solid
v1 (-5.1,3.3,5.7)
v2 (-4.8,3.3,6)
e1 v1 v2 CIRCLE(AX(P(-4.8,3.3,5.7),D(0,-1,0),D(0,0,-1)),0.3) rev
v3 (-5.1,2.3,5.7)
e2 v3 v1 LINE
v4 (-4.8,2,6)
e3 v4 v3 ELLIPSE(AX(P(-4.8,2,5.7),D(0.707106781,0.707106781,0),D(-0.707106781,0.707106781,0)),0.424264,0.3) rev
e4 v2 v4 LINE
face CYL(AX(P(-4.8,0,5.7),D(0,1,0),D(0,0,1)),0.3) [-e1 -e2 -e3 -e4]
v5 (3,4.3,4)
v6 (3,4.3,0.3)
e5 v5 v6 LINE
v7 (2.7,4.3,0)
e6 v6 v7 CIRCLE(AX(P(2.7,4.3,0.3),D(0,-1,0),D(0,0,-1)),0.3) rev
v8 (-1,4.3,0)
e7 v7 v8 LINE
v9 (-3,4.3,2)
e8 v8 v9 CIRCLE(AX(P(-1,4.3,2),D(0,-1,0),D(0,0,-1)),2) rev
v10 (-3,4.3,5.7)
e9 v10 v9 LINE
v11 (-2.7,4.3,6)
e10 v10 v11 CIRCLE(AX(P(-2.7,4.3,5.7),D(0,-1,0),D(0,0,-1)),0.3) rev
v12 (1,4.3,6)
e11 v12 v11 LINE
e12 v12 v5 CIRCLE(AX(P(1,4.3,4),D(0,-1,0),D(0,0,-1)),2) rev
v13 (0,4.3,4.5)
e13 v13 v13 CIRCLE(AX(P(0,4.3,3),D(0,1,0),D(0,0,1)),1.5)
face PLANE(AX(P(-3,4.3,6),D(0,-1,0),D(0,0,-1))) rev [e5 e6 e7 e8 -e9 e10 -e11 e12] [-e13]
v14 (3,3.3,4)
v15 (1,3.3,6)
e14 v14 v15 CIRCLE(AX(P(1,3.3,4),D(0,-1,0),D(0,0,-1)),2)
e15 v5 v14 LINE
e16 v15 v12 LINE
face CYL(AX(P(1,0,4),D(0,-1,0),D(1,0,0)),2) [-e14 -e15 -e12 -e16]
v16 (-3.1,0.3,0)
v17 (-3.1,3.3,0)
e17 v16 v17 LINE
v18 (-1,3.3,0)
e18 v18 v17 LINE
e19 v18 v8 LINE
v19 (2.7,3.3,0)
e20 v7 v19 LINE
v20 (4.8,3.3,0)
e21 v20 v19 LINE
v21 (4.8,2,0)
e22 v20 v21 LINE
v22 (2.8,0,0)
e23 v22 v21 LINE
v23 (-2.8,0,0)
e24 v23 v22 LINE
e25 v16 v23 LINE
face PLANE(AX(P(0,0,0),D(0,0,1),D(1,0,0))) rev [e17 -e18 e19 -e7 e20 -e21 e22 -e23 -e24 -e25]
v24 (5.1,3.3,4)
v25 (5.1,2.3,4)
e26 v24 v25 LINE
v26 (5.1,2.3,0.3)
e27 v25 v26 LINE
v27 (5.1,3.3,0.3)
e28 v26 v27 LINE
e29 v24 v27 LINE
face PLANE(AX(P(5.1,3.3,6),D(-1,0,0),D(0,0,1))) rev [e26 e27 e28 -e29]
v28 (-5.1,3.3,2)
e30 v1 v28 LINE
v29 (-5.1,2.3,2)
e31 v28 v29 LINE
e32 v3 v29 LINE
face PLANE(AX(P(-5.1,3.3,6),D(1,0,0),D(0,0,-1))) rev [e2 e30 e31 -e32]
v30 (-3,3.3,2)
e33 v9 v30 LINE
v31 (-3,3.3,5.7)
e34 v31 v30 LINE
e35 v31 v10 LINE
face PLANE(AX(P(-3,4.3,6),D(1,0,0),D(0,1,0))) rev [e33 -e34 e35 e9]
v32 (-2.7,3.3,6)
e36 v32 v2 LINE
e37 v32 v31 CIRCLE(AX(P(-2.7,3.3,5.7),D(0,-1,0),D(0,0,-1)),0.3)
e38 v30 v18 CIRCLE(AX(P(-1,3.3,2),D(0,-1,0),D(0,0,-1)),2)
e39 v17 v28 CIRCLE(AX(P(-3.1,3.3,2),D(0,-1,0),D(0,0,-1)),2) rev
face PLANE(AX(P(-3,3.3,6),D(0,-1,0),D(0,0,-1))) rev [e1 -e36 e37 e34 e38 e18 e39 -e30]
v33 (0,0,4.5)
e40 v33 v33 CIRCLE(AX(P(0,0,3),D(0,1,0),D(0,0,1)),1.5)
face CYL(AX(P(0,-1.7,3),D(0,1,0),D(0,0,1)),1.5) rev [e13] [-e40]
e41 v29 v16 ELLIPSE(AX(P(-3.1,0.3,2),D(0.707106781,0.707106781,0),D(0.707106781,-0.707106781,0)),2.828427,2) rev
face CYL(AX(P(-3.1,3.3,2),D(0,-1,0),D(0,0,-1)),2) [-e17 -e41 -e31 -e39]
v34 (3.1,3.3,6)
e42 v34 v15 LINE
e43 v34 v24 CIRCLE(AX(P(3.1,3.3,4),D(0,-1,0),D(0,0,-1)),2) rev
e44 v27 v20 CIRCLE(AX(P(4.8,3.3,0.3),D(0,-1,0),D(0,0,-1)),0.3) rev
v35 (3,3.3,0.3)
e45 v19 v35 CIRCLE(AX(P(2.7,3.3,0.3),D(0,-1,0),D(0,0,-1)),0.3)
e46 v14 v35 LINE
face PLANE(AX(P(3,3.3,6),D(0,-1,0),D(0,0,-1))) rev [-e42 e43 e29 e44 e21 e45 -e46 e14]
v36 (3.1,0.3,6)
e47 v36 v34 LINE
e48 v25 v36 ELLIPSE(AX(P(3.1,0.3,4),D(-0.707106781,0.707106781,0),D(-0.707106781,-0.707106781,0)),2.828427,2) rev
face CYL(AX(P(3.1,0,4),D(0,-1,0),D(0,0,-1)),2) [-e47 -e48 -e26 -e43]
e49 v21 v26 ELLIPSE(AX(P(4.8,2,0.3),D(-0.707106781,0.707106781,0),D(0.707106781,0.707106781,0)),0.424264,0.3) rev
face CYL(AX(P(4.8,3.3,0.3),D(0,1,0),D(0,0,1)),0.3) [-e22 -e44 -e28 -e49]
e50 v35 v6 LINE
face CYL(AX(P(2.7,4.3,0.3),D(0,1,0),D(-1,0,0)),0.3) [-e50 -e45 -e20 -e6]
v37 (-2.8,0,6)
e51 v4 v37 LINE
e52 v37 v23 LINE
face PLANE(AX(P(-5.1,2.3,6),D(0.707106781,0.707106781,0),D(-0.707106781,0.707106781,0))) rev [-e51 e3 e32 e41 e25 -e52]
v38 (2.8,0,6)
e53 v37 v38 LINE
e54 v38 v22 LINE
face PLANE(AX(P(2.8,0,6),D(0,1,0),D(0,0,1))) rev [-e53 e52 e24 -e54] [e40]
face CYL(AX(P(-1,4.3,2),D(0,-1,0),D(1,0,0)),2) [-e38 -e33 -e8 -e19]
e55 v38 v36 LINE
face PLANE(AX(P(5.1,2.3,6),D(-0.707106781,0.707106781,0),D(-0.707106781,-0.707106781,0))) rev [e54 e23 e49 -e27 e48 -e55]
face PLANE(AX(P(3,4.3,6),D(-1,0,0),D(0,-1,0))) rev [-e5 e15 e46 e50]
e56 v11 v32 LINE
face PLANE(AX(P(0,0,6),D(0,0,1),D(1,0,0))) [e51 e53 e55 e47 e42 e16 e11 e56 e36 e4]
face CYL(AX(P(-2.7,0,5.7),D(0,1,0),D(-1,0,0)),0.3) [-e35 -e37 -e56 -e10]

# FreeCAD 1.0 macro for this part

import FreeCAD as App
import Part
import Sketcher
from FreeCAD import Vector


def edges_at(feature, points):
    """Names of the edges that pass closest to the given points."""
    edges = feature.Shape.Edges
    near = lambda p: min(range(len(edges)), key=lambda i: edges[i].distToShape(Part.Vertex(*p))[0])
    return sorted({f"Edge{near(p) + 1}" for p in points})


def add_polygon(sketch, points):
    """Adds a closed chain of lines whose ends are joined by coincident constraints."""
    first, n = sketch.GeometryCount, len(points)
    for a, b in zip(points, points[1:] + points[:1]):
        sketch.addGeometry(Part.LineSegment(App.Vector(*a, 0), App.Vector(*b, 0)), False)
    for i in range(n):
        sketch.addConstraint(Sketcher.Constraint("Coincident", first + i, 2, first + (i + 1) % n, 1))

doc = App.newDocument("Part")
body = doc.addObject("PartDesign::Body", "Body")

# Sketch on XY plane
sketch1 = body.newObject("Sketcher::SketchObject", "Sketch")
sketch1.AttachmentSupport = (doc.getObject("XY_Plane"), [""])
sketch1.MapMode = "FlatFace"
add_polygon(sketch1, [(3, 4.3), (-3, 4.3), (-3, 3.3), (-5.1, 3.3), (-5.1, 2.3), (-2.8, 0), (2.8, 0), (5.1, 2.3), (5.1, 3.3), (3, 3.3)])  # lines 0-9
sketch1.addConstraint([
    Sketcher.Constraint("Horizontal", 0),
    Sketcher.Constraint("Vertical", 1),
    Sketcher.Constraint("Horizontal", 2),
    Sketcher.Constraint("Vertical", 3),
    Sketcher.Constraint("Horizontal", 5),
    Sketcher.Constraint("Vertical", 7),
    Sketcher.Constraint("Horizontal", 8),
    Sketcher.Constraint("Vertical", 9),
    Sketcher.Constraint("Symmetric", 4, 2, 5, 2, -1, 1),
    Sketcher.Constraint("Symmetric", 3, 2, 6, 2, -2),
    Sketcher.Constraint("Symmetric", 1, 2, 8, 2, -2),
    Sketcher.Constraint("Perpendicular", 4, 6),
    Sketcher.Constraint("Equal", 1, 3),
    Sketcher.Constraint("DistanceX", 0, 2, 0, 1, 6.0),
    Sketcher.Constraint("DistanceY", 1, 2, 1, 1, 1.0),
    Sketcher.Constraint("DistanceX", 2, 2, 2, 1, 2.1),
    Sketcher.Constraint("DistanceX", 5, 1, 5, 2, 5.6),
])
pad1 = body.newObject("PartDesign::Pad", "Pad")
pad1.Profile = sketch1
pad1.Length = 6
doc.recompute()

fillet = body.newObject("PartDesign::Fillet", "Fillet")
fillet.Base = (pad1, edges_at(pad1, [(-3, 3.8, 0), (3, 3.8, 6)]))
fillet.Radius = 2
doc.recompute()

fillet2 = body.newObject("PartDesign::Fillet", "Fillet001")
fillet2.Base = (fillet, edges_at(fillet, [(-5.1, 2.8, 0), (5.1, 2.8, 6)]))
fillet2.Radius = 2
doc.recompute()

fillet3 = body.newObject("PartDesign::Fillet", "Fillet002")
fillet3.Base = (fillet2, edges_at(fillet2, [
    (-3, 3.8, 6),
    (3, 3.8, 0),
    (-5.1, 2.8, 6),
    (5.1, 2.8, 0),
]))
fillet3.Radius = 0.3

# Sketch on XZ plane
sketch2 = body.newObject("Sketcher::SketchObject", "Sketch001")
sketch2.AttachmentSupport = (doc.getObject("XZ_Plane"), [""])
sketch2.MapMode = "FlatFace"
sketch2.AttachmentOffset = App.Placement(Vector(0, 0, -4.3), App.Rotation())
sketch2.addGeometry(Part.Circle(Vector(0, 3, 0), Vector(0, 0, 1), 1.5), False)
sketch2.addConstraint([
    Sketcher.Constraint("PointOnObject", 0, 3, -2),
    Sketcher.Constraint("Diameter", 0, 3.0),
    Sketcher.Constraint("DistanceY", -1, 1, 0, 3, 3.0),
])
pocket1 = body.newObject("PartDesign::Pocket", "Pocket")
pocket1.Profile = sketch2
pocket1.Length = 6
pocket1.Reversed = True

doc.recompute()
